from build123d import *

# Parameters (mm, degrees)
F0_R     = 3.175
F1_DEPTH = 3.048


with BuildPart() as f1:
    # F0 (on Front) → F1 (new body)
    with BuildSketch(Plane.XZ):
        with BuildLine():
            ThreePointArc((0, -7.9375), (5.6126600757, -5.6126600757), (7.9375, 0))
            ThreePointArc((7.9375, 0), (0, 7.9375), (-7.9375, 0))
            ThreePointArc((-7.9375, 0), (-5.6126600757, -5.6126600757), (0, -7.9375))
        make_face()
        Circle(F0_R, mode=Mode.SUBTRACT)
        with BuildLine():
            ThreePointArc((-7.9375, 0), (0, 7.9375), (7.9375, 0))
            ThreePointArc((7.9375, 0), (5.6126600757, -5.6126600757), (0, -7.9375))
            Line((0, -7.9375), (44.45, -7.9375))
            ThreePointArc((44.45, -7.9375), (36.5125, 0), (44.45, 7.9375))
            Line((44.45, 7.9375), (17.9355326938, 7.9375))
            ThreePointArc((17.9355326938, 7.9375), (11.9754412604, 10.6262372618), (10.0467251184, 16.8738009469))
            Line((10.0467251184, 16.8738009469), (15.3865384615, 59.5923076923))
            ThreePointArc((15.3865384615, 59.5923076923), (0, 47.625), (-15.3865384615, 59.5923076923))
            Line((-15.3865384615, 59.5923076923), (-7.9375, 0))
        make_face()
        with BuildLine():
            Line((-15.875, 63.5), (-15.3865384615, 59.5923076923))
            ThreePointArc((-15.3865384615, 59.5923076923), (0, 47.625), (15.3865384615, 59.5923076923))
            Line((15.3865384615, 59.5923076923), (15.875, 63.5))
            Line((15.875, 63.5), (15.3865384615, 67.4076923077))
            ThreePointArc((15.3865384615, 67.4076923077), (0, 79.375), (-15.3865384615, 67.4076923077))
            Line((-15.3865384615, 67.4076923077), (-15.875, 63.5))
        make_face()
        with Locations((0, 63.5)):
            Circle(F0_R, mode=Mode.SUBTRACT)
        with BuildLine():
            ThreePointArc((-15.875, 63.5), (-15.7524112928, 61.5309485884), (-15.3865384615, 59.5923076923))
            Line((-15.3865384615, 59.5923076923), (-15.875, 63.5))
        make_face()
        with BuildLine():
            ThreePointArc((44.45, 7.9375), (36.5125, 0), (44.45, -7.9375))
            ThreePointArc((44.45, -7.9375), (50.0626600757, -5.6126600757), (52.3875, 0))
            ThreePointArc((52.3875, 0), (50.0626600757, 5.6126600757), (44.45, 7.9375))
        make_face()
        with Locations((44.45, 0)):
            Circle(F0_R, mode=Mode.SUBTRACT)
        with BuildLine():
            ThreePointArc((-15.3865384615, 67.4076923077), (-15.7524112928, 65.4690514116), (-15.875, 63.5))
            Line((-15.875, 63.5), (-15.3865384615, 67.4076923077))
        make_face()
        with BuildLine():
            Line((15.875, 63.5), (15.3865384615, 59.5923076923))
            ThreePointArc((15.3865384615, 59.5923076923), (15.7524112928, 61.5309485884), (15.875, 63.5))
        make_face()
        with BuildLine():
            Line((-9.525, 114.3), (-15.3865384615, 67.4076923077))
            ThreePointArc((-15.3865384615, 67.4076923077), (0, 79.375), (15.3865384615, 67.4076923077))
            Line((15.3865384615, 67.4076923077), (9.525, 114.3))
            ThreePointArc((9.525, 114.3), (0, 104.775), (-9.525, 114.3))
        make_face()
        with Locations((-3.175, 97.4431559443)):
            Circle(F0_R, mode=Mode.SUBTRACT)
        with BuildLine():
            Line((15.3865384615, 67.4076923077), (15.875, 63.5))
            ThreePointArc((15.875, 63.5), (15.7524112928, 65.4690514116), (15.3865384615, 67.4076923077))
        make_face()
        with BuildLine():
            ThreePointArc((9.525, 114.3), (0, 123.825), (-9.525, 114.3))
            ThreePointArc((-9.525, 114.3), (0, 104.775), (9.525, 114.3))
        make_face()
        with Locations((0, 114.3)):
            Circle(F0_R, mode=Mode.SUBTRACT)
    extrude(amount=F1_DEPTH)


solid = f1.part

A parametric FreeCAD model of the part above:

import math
import FreeCAD as App
import Part
import Sketcher

V = App.Vector
Q = App.Units.Quantity

doc = App.newDocument("Part")
body = doc.addObject("PartDesign::Body", "Body")

# Sketch on XZ plane
sketch1 = body.newObject("Sketcher::SketchObject", "Sketch")
sketch1.AttachmentSupport = (doc.getObject("XZ_Plane"), [""])
sketch1.MapMode = "FlatFace"
sketch1.addGeometry([
    Part.ArcOfCircle(Part.Circle(V(0, 0, 0), V(0, 0, 1), 7.9375), math.radians(180), math.radians(270)),  # 0
    Part.LineSegment(V(0, -7.9375, 0), V(44.45, -7.9375, 0)),  # 1
    Part.ArcOfCircle(Part.Circle(V(44.45, 0, 0), V(0, 0, 1), 7.9375), math.radians(-90), math.radians(0)),  # 2
    Part.ArcOfCircle(Part.Circle(V(44.45, 0, 0), V(0, 0, 1), 7.9375), math.radians(0), math.radians(90)),  # 3
    Part.LineSegment(V(44.45, 7.9375, 0), V(17.935533, 7.9375, 0)),  # 4
    Part.ArcOfCircle(Part.Circle(V(17.935533, 15.8877, 0), V(0, 0, 1), 7.9502), math.radians(172.874984), math.radians(270)),  # 5
    Part.LineSegment(V(10.046725, 16.873801, 0), V(15.386538, 59.592308, 0)),  # 6
    Part.ArcOfCircle(Part.Circle(V(0, 63.5, 0), V(0, 0, 1), 15.875), math.radians(-14.250033), math.radians(0)),  # 7
    Part.ArcOfCircle(Part.Circle(V(0, 63.5, 0), V(0, 0, 1), 15.875), math.radians(0), math.radians(14.250033)),  # 8
    Part.LineSegment(V(15.386538, 67.407692, 0), V(9.525, 114.3, 0)),  # 9
    Part.ArcOfCircle(Part.Circle(V(0, 114.3, 0), V(0, 0, 1), 9.525), math.radians(0), math.radians(180)),  # 10
    Part.LineSegment(V(-9.525, 114.3, 0), V(-15.386538, 67.407692, 0)),  # 11
    Part.ArcOfCircle(Part.Circle(V(0, 63.5, 0), V(0, 0, 1), 15.875), math.radians(165.749967), math.radians(180)),  # 12
    Part.ArcOfCircle(Part.Circle(V(0, 63.5, 0), V(0, 0, 1), 15.875), math.radians(180), math.radians(194.250033)),  # 13
    Part.LineSegment(V(-15.386538, 59.592308, 0), V(-7.9375, 0, 0)),  # 14
    Part.Circle(V(0, 0, 0), V(0, 0, 1), 3.175),  # 15
    Part.Circle(V(44.45, 0, 0), V(0, 0, 1), 3.175),  # 16
    Part.Circle(V(0, 63.5, 0), V(0, 0, 1), 3.175),  # 17
    Part.Circle(V(-3.175, 97.443156, 0), V(0, 0, 1), 3.175),  # 18
    Part.Circle(V(0, 114.3, 0), V(0, 0, 1), 3.175),  # 19
], False)
sketch1.addConstraint([
    Sketcher.Constraint("Tangent", 0, 2, 1, 1),
    Sketcher.Constraint("Tangent", 1, 2, 2, 1),
    Sketcher.Constraint("Tangent", 2, 2, 3, 1),
    Sketcher.Constraint("Tangent", 3, 2, 4, 1),
    Sketcher.Constraint("Tangent", 4, 2, 5, 2),
    Sketcher.Constraint("Tangent", 5, 1, 6, 1),
    Sketcher.Constraint("Coincident", 6, 2, 7, 1),
    Sketcher.Constraint("Tangent", 7, 2, 8, 1),
    Sketcher.Constraint("Coincident", 8, 2, 9, 1),
    Sketcher.Constraint("Coincident", 9, 2, 10, 1),
    Sketcher.Constraint("Coincident", 10, 2, 11, 1),
    Sketcher.Constraint("Coincident", 11, 2, 12, 1),
    Sketcher.Constraint("Tangent", 12, 2, 13, 1),
    Sketcher.Constraint("Coincident", 13, 2, 14, 1),
    Sketcher.Constraint("Coincident", 14, 2, 0, 1),
    Sketcher.Constraint("Horizontal", 1),
    Sketcher.Constraint("Horizontal", 4),
    Sketcher.Constraint("Coincident", 0, 3, -1, 1),
    Sketcher.Constraint("Coincident", 15, 3, -1, 1),
    Sketcher.Constraint("Coincident", 12, 3, 7, 3),
    Sketcher.Constraint("Coincident", 16, 3, 2, 3),
    Sketcher.Constraint("Coincident", 17, 3, 7, 3),
    Sketcher.Constraint("Coincident", 19, 3, 10, 3),
    Sketcher.Constraint("Equal", 0, 2),
    Sketcher.Constraint("Equal", 2, 3),
    Sketcher.Constraint("Equal", 7, 8),
    Sketcher.Constraint("Equal", 8, 12),
    Sketcher.Constraint("Equal", 12, 13),
    Sketcher.Constraint("Equal", 15, 16),
    Sketcher.Constraint("Equal", 16, 17),
    Sketcher.Constraint("Equal", 17, 18),
    Sketcher.Constraint("Equal", 18, 19),
    Sketcher.Constraint("Symmetric", 9, 2, 10, 2, -2),
    Sketcher.Constraint("Symmetric", 8, 2, 11, 2, -2),
    Sketcher.Constraint("PointOnObject", 2, 2, -1),
    Sketcher.Constraint("PointOnObject", 14, 2, -1),
    Sketcher.Constraint("Parallel", 6, 11),
    Sketcher.Constraint("Parallel", 9, 14),
    Sketcher.Constraint("Horizontal", 17, 3, 7, 2),
    Sketcher.Constraint("Horizontal", 19, 3, 9, 2),
    Sketcher.Constraint("Horizontal", 7, 2, 12, 2),
    Sketcher.Constraint("Horizontal", 6, 2, 13, 2),
    Sketcher.Constraint("Vertical", 6, 2, 8, 2),
    Sketcher.Constraint("Diameter", 15, Q("0.25 in")),
    Sketcher.Constraint("Radius", 0, Q("0.3125 in")),
    Sketcher.Constraint("Radius", 5, Q("0.313 in")),
    Sketcher.Constraint("Radius", 7, Q("0.625 in")),
    Sketcher.Constraint("Radius", 10, Q("0.375 in")),
    Sketcher.Constraint("DistanceY", 7, 3, 10, 3, Q("2 in")),
    Sketcher.Constraint("DistanceX", 1, 1, 1, 2, Q("1.75 in")),
    Sketcher.Constraint("DistanceY", -1, 1, 7, 3, Q("2.5 in")),
    Sketcher.Constraint("DistanceX", 18, 3, 9, 2, Q("0.5 in")),
    Sketcher.Constraint("DistanceY", -1, 1, 18, 3, Q("97.443156 mm")),
])
pad1 = body.newObject("PartDesign::Pad", "Pad")
pad1.Profile = sketch1
pad1.Length = Q("0.12 in")

doc.recompute()
